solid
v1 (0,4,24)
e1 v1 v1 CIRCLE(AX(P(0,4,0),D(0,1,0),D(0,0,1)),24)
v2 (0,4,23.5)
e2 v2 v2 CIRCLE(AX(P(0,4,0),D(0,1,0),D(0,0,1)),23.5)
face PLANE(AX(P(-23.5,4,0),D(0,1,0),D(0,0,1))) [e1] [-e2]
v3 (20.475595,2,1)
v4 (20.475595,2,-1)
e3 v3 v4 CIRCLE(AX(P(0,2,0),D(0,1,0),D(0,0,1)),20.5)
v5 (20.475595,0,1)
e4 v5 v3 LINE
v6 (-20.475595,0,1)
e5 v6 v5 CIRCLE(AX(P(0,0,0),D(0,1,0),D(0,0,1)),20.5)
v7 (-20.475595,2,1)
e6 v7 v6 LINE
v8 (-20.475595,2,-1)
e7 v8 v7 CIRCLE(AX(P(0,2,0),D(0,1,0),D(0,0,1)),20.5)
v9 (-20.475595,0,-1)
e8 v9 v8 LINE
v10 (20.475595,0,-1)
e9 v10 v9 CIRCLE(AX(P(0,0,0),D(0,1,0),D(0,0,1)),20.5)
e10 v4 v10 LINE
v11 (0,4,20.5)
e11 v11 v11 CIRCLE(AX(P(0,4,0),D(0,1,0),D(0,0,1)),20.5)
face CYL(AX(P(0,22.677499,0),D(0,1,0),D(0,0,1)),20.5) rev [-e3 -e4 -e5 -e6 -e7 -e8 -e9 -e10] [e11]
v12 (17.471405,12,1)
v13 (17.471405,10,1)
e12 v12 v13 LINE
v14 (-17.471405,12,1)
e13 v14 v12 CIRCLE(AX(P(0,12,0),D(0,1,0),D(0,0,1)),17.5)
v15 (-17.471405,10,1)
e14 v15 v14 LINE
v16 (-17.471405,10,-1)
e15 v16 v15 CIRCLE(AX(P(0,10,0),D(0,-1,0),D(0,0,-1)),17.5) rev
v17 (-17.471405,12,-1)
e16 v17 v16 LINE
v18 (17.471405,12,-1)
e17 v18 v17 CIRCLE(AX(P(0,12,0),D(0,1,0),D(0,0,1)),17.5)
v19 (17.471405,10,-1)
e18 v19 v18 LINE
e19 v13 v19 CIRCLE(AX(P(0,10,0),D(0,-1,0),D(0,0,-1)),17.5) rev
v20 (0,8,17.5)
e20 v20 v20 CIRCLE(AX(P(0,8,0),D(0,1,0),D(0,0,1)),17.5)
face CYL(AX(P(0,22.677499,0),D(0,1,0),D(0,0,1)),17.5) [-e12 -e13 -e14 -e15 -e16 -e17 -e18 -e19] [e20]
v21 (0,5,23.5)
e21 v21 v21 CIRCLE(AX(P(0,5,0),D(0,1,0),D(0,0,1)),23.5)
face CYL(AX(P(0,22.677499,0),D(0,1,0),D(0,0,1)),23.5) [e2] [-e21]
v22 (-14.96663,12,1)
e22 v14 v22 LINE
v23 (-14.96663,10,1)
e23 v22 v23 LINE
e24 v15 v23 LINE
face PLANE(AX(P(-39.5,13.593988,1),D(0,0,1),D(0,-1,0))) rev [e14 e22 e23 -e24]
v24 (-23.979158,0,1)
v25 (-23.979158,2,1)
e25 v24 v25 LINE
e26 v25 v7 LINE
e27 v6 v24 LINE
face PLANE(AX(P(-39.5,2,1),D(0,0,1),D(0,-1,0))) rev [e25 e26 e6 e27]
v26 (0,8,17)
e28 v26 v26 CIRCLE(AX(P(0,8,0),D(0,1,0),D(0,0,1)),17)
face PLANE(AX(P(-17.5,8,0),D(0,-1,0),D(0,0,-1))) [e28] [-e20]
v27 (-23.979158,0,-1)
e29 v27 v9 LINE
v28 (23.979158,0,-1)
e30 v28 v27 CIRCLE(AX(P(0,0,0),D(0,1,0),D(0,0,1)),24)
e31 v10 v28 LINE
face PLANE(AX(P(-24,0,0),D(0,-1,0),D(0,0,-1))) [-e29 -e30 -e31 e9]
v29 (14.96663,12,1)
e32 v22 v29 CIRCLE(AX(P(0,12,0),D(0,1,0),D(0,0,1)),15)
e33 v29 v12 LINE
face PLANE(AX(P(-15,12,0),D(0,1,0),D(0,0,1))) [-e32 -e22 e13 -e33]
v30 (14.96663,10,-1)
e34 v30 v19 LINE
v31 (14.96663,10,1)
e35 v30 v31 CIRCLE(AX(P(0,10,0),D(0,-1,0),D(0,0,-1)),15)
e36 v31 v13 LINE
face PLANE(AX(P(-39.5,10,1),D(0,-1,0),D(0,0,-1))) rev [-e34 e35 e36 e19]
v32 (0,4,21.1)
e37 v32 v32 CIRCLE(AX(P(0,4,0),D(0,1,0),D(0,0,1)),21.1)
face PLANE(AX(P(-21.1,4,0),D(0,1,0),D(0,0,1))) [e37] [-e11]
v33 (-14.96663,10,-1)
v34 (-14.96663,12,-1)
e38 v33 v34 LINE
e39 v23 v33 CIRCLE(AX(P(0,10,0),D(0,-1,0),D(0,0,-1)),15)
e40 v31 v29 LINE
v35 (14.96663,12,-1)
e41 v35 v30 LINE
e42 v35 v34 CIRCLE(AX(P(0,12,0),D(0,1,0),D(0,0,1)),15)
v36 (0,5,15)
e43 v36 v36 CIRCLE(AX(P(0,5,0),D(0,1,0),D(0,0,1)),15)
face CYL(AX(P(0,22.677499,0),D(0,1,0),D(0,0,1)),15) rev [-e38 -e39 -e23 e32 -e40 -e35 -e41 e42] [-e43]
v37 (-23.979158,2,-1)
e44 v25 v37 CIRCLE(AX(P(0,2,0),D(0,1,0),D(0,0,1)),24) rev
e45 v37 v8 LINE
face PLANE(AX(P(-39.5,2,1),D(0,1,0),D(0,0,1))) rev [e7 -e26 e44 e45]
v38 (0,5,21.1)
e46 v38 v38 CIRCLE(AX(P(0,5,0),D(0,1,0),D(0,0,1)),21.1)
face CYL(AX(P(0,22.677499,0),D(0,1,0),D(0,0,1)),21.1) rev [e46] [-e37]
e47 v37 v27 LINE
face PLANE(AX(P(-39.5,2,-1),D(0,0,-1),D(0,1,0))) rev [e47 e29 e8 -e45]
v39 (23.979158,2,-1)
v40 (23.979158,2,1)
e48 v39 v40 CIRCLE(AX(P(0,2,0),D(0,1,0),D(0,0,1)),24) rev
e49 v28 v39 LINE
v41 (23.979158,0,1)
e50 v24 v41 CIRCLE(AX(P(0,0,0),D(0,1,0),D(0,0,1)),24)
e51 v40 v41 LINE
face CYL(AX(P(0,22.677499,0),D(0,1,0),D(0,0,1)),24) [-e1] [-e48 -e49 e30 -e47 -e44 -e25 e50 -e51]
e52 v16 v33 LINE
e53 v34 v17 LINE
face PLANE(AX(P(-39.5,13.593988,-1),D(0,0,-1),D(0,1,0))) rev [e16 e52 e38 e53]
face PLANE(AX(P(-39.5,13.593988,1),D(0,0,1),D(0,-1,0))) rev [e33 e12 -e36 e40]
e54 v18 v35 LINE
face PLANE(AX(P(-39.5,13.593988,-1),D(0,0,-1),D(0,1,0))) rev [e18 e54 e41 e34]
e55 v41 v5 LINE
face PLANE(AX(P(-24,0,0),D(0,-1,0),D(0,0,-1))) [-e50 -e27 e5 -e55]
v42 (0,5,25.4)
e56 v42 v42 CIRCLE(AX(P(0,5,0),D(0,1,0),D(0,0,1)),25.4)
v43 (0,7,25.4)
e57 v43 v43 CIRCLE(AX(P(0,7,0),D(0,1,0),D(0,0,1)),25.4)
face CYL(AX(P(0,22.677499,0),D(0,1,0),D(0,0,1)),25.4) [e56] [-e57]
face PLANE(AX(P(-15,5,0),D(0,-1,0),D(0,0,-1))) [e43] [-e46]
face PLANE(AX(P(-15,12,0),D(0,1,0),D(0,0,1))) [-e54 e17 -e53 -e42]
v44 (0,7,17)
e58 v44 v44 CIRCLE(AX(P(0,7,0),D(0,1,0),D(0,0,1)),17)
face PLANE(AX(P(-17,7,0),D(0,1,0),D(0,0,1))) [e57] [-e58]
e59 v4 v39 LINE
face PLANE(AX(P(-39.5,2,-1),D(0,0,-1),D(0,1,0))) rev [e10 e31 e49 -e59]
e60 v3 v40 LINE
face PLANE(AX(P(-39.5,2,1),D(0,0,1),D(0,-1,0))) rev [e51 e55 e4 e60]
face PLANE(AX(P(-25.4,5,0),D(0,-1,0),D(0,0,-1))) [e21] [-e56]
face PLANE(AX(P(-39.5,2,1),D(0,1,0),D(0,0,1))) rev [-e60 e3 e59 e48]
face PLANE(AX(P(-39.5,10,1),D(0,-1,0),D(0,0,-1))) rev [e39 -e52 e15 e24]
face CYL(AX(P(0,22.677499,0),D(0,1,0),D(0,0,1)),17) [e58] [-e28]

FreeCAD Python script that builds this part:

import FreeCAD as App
import Part
import Sketcher

V = App.Vector

doc = App.newDocument("Part")
params = doc.addObject("Spreadsheet::Sheet", "Params")
for row, (alias, value) in enumerate([
    ("sketch1_height", "4 mm"),
    ("sketch1_height2", "1 mm"),
    ("sketch1_height3", "2 mm"),
    ("sketch1_width", "2.5 mm"),
    ("sketch1_width2", "0.5 mm"),
    ("revolution_angle", "360 deg"),
    ("sketch2_height", "2 mm"),
    ("pocket1_length", "79 mm"),
], start=1):
    params.set(f"A{row}", alias)
    params.set(f"B{row}", "=" + value)
    params.setAlias(f"B{row}", alias)

body = doc.addObject("PartDesign::Body", "Body")

sketch1 = body.newObject("Sketcher::SketchObject", "Sketch")
sketch1.AttachmentSupport = (doc.getObject("XY_Plane"), [""])
sketch1.MapMode = "FlatFace"
sketch1.addGeometry(Part.LineSegment(V(-15, 12, 0), V(-17.5, 12, 0)), False)
sketch1.addGeometry(Part.LineSegment(V(-17.5, 12, 0), V(-17.5, 8, 0)), False)
sketch1.addGeometry(Part.LineSegment(V(-17.5, 8, 0), V(-17, 8, 0)), False)
sketch1.addGeometry(Part.LineSegment(V(-17, 8, 0), V(-17, 7, 0)), False)
sketch1.addGeometry(Part.LineSegment(V(-17, 7, 0), V(-25.4, 7, 0)), False)
sketch1.addGeometry(Part.LineSegment(V(-25.4, 7, 0), V(-25.4, 5, 0)), False)
sketch1.addGeometry(Part.LineSegment(V(-25.4, 5, 0), V(-23.5, 5, 0)), False)
sketch1.addGeometry(Part.LineSegment(V(-23.5, 5, 0), V(-23.5, 4, 0)), False)
sketch1.addGeometry(Part.LineSegment(V(-23.5, 4, 0), V(-24, 4, 0)), False)
sketch1.addGeometry(Part.LineSegment(V(-24, 4, 0), V(-24, 0, 0)), False)
sketch1.addGeometry(Part.LineSegment(V(-24, 0, 0), V(-20.5, 0, 0)), False)
sketch1.addGeometry(Part.LineSegment(V(-20.5, 0, 0), V(-20.5, 4, 0)), False)
sketch1.addGeometry(Part.LineSegment(V(-20.5, 4, 0), V(-21.1, 4, 0)), False)
sketch1.addGeometry(Part.LineSegment(V(-21.1, 4, 0), V(-21.1, 5, 0)), False)
sketch1.addGeometry(Part.LineSegment(V(-21.1, 5, 0), V(-15, 5, 0)), False)
sketch1.addGeometry(Part.LineSegment(V(-15, 5, 0), V(-15, 12, 0)), False)
sketch1.addConstraint(Sketcher.Constraint("Coincident", 0, 2, 1, 1))
sketch1.addConstraint(Sketcher.Constraint("Coincident", 1, 2, 2, 1))
sketch1.addConstraint(Sketcher.Constraint("Coincident", 2, 2, 3, 1))
sketch1.addConstraint(Sketcher.Constraint("Coincident", 3, 2, 4, 1))
sketch1.addConstraint(Sketcher.Constraint("Coincident", 4, 2, 5, 1))
sketch1.addConstraint(Sketcher.Constraint("Coincident", 5, 2, 6, 1))
sketch1.addConstraint(Sketcher.Constraint("Coincident", 6, 2, 7, 1))
sketch1.addConstraint(Sketcher.Constraint("Coincident", 7, 2, 8, 1))
sketch1.addConstraint(Sketcher.Constraint("Coincident", 8, 2, 9, 1))
sketch1.addConstraint(Sketcher.Constraint("Coincident", 9, 2, 10, 1))
sketch1.addConstraint(Sketcher.Constraint("Coincident", 10, 2, 11, 1))
sketch1.addConstraint(Sketcher.Constraint("Coincident", 11, 2, 12, 1))
sketch1.addConstraint(Sketcher.Constraint("Coincident", 12, 2, 13, 1))
sketch1.addConstraint(Sketcher.Constraint("Coincident", 13, 2, 14, 1))
sketch1.addConstraint(Sketcher.Constraint("Coincident", 14, 2, 15, 1))
sketch1.addConstraint(Sketcher.Constraint("Coincident", 15, 2, 0, 1))
sketch1.addConstraint(Sketcher.Constraint("Horizontal", 0))
sketch1.addConstraint(Sketcher.Constraint("Vertical", 1))
sketch1.addConstraint(Sketcher.Constraint("Horizontal", 2))
sketch1.addConstraint(Sketcher.Constraint("Vertical", 3))
sketch1.addConstraint(Sketcher.Constraint("Horizontal", 4))
sketch1.addConstraint(Sketcher.Constraint("Vertical", 5))
sketch1.addConstraint(Sketcher.Constraint("Horizontal", 6))
sketch1.addConstraint(Sketcher.Constraint("Vertical", 7))
sketch1.addConstraint(Sketcher.Constraint("Horizontal", 8))
sketch1.addConstraint(Sketcher.Constraint("Vertical", 9))
sketch1.addConstraint(Sketcher.Constraint("Horizontal", 10))
sketch1.addConstraint(Sketcher.Constraint("Vertical", 11))
sketch1.addConstraint(Sketcher.Constraint("Horizontal", 12))
sketch1.addConstraint(Sketcher.Constraint("Vertical", 13))
sketch1.addConstraint(Sketcher.Constraint("Horizontal", 14))
sketch1.addConstraint(Sketcher.Constraint("Vertical", 15))
sketch1.addConstraint(Sketcher.Constraint("PointOnObject", 9, 2, -1))
sketch1.addConstraint(Sketcher.Constraint("Horizontal", 8, 2, 11, 2))
sketch1.addConstraint(Sketcher.Constraint("Horizontal", 6, 2, 13, 2))
sketch1.addConstraint(Sketcher.Constraint("Equal", 2, 8))
sketch1.addConstraint(Sketcher.Constraint("Equal", 3, 7))
sketch1.addConstraint(Sketcher.Constraint("Equal", 1, 9))
sketch1.addConstraint(Sketcher.Constraint("DistanceY", 1, 2, 1, 1, 4.0))
sketch1.addConstraint(Sketcher.Constraint("DistanceY", 3, 2, 3, 1, 1.0))
sketch1.addConstraint(Sketcher.Constraint("DistanceY", 5, 2, 5, 1, 2.0))
sketch1.addConstraint(Sketcher.Constraint("DistanceX", 0, 2, 0, 1, 2.5))
sketch1.addConstraint(Sketcher.Constraint("DistanceX", 2, 1, 2, 2, 0.5))
sketch1.addConstraint(Sketcher.Constraint("DistanceX", 4, 2, 4, 1, 8.4))
sketch1.addConstraint(Sketcher.Constraint("DistanceX", 6, 1, 6, 2, 1.9))
sketch1.addConstraint(Sketcher.Constraint("DistanceX", 10, 1, 10, 2, 3.5))
sketch1.addConstraint(Sketcher.Constraint("DistanceX", 12, 2, 12, 1, 0.6))
sketch1.addConstraint(Sketcher.Constraint("DistanceX", 2, 2, -1, 1, 17.0))
sketch1.setExpression("Constraints[38]", "Params.sketch1_height")
sketch1.setExpression("Constraints[39]", "Params.sketch1_height2")
sketch1.setExpression("Constraints[40]", "Params.sketch1_height3")
sketch1.setExpression("Constraints[41]", "Params.sketch1_width")
sketch1.setExpression("Constraints[42]", "Params.sketch1_width2")
revolution = body.newObject("PartDesign::Revolution", "Revolution")
revolution.Profile = sketch1
revolution.ReferenceAxis = (sketch1, ["V_Axis"])
revolution.setExpression("Angle", "Params.revolution_angle")

sketch2 = body.newObject("Sketcher::SketchObject", "Sketch001")
sketch2.AttachmentSupport = (doc.getObject("YZ_Plane"), [""])
sketch2.MapMode = "FlatFace"
sketch2.addGeometry(Part.LineSegment(V(13.6, 1, 0), V(10, 1, 0)), False)
sketch2.addGeometry(Part.LineSegment(V(10, 1, 0), V(10, -1, 0)), False)
sketch2.addGeometry(Part.LineSegment(V(10, -1, 0), V(13.6, -1, 0)), False)
sketch2.addGeometry(Part.LineSegment(V(13.6, -1, 0), V(13.6, 1, 0)), False)
sketch2.addGeometry(Part.LineSegment(V(2, 1, 0), V(-4.7, 1, 0)), False)
sketch2.addGeometry(Part.LineSegment(V(-4.7, 1, 0), V(-4.7, -1, 0)), False)
sketch2.addGeometry(Part.LineSegment(V(-4.7, -1, 0), V(2, -1, 0)), False)
sketch2.addGeometry(Part.LineSegment(V(2, -1, 0), V(2, 1, 0)), False)
sketch2.addConstraint(Sketcher.Constraint("Coincident", 0, 2, 1, 1))
sketch2.addConstraint(Sketcher.Constraint("Coincident", 1, 2, 2, 1))
sketch2.addConstraint(Sketcher.Constraint("Coincident", 2, 2, 3, 1))
sketch2.addConstraint(Sketcher.Constraint("Coincident", 3, 2, 0, 1))
sketch2.addConstraint(Sketcher.Constraint("Coincident", 4, 2, 5, 1))
sketch2.addConstraint(Sketcher.Constraint("Coincident", 5, 2, 6, 1))
sketch2.addConstraint(Sketcher.Constraint("Coincident", 6, 2, 7, 1))
sketch2.addConstraint(Sketcher.Constraint("Coincident", 7, 2, 4, 1))
sketch2.addConstraint(Sketcher.Constraint("Horizontal", 0))
sketch2.addConstraint(Sketcher.Constraint("Vertical", 1))
sketch2.addConstraint(Sketcher.Constraint("Horizontal", 2))
sketch2.addConstraint(Sketcher.Constraint("Vertical", 3))
sketch2.addConstraint(Sketcher.Constraint("Horizontal", 4))
sketch2.addConstraint(Sketcher.Constraint("Vertical", 5))
sketch2.addConstraint(Sketcher.Constraint("Horizontal", 6))
sketch2.addConstraint(Sketcher.Constraint("Vertical", 7))
sketch2.addConstraint(Sketcher.Constraint("Horizontal", 3, 2, 4, 2))
sketch2.addConstraint(Sketcher.Constraint("Horizontal", 2, 2, 5, 2))
sketch2.addConstraint(Sketcher.Constraint("DistanceY", 1, 2, 1, 1, 2.0))
sketch2.addConstraint(Sketcher.Constraint("DistanceX", -1, 1, 0, 2, 10.0))
sketch2.addConstraint(Sketcher.Constraint("DistanceY", -1, 1, 0, 2, 1.0))
sketch2.addConstraint(Sketcher.Constraint("DistanceX", -1, 1, 6, 2, 2.0))
sketch2.addConstraint(Sketcher.Constraint("DistanceX", 0, 2, 0, 1, 3.593988))
sketch2.addConstraint(Sketcher.Constraint("DistanceX", 4, 2, 4, 1, 6.667892))
sketch2.setExpression("Constraints[18]", "Params.sketch2_height")
pocket1 = body.newObject("PartDesign::Pocket", "Pocket")
pocket1.Profile = sketch2
pocket1.setExpression("Length", "Params.pocket1_length")
pocket1.Midplane = True

doc.recompute()
